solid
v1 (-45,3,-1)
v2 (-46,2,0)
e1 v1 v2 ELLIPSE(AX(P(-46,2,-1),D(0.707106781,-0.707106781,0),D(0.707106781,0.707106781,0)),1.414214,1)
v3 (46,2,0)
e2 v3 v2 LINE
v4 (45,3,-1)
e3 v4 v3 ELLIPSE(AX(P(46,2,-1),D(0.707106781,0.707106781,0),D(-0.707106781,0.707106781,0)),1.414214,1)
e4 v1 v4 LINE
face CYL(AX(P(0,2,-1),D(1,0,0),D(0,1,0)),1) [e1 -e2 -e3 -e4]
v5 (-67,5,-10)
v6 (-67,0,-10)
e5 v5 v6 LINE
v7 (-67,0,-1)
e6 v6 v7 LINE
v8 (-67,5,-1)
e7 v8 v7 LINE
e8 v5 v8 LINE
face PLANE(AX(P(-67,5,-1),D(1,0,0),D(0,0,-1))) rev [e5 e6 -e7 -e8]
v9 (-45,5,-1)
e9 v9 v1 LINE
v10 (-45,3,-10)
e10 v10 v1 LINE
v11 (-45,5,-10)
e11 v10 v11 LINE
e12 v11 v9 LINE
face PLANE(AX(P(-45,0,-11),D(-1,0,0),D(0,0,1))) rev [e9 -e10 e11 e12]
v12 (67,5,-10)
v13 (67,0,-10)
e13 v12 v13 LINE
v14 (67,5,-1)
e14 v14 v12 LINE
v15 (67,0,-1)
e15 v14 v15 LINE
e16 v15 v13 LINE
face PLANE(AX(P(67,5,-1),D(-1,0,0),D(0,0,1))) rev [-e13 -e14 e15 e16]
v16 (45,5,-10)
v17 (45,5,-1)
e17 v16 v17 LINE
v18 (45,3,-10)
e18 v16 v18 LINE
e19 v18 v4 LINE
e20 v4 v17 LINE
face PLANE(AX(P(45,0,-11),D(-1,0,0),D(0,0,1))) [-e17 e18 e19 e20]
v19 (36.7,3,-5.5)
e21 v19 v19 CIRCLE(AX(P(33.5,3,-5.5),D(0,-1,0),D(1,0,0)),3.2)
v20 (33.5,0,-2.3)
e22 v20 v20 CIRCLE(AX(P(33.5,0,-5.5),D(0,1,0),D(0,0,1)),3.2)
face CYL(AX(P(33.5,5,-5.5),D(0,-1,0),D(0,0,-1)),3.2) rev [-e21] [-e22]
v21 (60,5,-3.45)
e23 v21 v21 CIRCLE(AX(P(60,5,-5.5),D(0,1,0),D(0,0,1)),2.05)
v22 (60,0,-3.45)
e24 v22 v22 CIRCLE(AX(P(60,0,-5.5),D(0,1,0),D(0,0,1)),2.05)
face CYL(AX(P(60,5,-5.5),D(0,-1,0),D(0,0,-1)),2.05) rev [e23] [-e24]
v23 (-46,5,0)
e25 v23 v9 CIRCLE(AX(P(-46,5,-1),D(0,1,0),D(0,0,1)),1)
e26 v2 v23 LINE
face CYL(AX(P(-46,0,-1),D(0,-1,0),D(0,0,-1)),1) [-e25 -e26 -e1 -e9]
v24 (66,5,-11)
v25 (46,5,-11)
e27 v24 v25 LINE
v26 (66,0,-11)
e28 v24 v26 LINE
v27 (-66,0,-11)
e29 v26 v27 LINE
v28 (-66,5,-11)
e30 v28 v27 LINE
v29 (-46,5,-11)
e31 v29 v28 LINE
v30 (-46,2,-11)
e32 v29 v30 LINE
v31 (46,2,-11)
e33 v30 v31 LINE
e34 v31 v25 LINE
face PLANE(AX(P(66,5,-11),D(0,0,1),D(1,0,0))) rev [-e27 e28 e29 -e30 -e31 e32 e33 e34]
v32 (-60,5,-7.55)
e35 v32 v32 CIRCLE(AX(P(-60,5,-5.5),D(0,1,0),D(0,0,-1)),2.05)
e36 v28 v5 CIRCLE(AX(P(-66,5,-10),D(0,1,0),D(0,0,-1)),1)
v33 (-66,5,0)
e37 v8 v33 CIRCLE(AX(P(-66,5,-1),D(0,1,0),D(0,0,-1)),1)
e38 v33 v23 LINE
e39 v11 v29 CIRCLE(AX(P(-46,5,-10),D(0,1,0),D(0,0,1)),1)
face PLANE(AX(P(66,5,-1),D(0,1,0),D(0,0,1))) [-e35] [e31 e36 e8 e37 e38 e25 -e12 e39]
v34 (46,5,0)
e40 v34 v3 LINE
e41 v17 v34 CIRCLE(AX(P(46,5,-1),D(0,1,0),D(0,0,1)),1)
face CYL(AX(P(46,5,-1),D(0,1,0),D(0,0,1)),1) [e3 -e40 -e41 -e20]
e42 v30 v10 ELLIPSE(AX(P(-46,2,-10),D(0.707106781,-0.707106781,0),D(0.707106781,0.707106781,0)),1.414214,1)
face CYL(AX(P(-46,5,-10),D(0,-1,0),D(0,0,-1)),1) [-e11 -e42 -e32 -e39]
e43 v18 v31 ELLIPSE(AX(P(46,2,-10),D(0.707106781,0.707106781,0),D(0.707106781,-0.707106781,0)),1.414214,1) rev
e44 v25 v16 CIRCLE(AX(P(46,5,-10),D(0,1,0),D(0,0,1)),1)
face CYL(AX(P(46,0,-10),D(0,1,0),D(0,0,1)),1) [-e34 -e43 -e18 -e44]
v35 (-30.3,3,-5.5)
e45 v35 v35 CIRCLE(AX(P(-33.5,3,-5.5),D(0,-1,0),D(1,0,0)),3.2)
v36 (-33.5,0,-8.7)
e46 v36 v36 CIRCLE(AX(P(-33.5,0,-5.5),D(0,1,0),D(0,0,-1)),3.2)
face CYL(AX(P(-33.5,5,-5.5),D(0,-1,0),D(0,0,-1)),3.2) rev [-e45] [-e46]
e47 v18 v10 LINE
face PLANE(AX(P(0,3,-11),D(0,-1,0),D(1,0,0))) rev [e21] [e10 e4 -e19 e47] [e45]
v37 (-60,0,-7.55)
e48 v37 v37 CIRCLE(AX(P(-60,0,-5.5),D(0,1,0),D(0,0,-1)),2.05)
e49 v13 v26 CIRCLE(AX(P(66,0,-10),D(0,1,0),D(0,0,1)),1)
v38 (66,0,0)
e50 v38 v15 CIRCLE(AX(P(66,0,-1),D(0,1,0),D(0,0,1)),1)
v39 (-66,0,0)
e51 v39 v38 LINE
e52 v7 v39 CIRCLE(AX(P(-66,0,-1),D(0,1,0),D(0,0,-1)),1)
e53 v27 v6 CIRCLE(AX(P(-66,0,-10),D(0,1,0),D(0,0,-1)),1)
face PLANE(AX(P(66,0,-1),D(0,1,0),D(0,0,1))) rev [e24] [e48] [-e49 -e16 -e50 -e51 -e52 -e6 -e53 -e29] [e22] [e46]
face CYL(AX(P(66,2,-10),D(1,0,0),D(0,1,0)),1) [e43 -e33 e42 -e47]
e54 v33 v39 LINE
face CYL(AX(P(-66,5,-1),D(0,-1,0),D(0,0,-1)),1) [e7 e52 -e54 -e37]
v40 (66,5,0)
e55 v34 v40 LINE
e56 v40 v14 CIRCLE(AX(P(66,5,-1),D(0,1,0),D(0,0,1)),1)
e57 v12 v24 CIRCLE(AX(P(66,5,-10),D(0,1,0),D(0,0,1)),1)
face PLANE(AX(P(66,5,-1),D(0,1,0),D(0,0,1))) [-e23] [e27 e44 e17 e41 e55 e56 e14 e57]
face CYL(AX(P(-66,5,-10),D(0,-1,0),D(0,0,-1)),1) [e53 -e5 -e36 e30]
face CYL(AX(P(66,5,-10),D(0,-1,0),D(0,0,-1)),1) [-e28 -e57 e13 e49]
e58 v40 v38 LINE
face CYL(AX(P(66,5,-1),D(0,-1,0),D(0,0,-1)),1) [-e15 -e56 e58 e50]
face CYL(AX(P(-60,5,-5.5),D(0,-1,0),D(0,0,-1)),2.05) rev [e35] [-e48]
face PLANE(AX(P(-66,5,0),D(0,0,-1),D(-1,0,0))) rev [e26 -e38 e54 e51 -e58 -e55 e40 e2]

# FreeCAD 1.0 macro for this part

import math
import FreeCAD as App
import Part
import Sketcher
Q = App.Units.Quantity


def edges_at(feature, points):
    """Names of the edges that pass closest to the given points."""
    edges = feature.Shape.Edges
    near = lambda p: min(range(len(edges)), key=lambda i: edges[i].distToShape(Part.Vertex(*p))[0])
    return sorted({f"Edge{near(p) + 1}" for p in points})

doc = App.newDocument("Part")
body = doc.addObject("PartDesign::Body", "Body")

# Sketch on XZ plane
sketch1 = body.newObject("Sketcher::SketchObject", "Sketch")
sketch1.AttachmentSupport = (doc.getObject("XZ_Plane"), [""])
sketch1.MapMode = "FlatFace"
sketch1.addGeometry(Part.LineSegment(App.Vector(-66, 0, 0), App.Vector(66, 0, 0)), False)
sketch1.addGeometry(Part.ArcOfCircle(Part.Circle(App.Vector(66, -1, 0), App.Vector(0, 0, 1), 1), math.radians(0), math.radians(90)), False)
sketch1.addGeometry(Part.LineSegment(App.Vector(67, -1, 0), App.Vector(67, -10, 0)), False)
sketch1.addGeometry(Part.ArcOfCircle(Part.Circle(App.Vector(66, -10, 0), App.Vector(0, 0, 1), 1), math.radians(-90), math.radians(0)), False)
sketch1.addGeometry(Part.LineSegment(App.Vector(66, -11, 0), App.Vector(-66, -11, 0)), False)
sketch1.addGeometry(Part.ArcOfCircle(Part.Circle(App.Vector(-66, -10, 0), App.Vector(0, 0, 1), 1), math.radians(-180), math.radians(-90)), False)
sketch1.addGeometry(Part.LineSegment(App.Vector(-67, -10, 0), App.Vector(-67, -1, 0)), False)
sketch1.addGeometry(Part.ArcOfCircle(Part.Circle(App.Vector(-66, -1, 0), App.Vector(0, 0, 1), 1), math.radians(90), math.radians(180)), False)
sketch1.addGeometry(Part.Circle(App.Vector(-60, -5.5, 0), App.Vector(0, 0, 1), 2.05), False)
sketch1.addGeometry(Part.Circle(App.Vector(-33.5, -5.5, 0), App.Vector(0, 0, 1), 3.2), False)
sketch1.addGeometry(Part.Circle(App.Vector(33.5, -5.5, 0), App.Vector(0, 0, 1), 3.2), False)
sketch1.addGeometry(Part.Circle(App.Vector(60, -5.5, 0), App.Vector(0, 0, 1), 2.05), False)
sketch1.addConstraint(Sketcher.Constraint("Tangent", 0, 2, 1, 2))
sketch1.addConstraint(Sketcher.Constraint("Tangent", 1, 1, 2, 1))
sketch1.addConstraint(Sketcher.Constraint("Tangent", 2, 2, 3, 2))
sketch1.addConstraint(Sketcher.Constraint("Tangent", 3, 1, 4, 1))
sketch1.addConstraint(Sketcher.Constraint("Tangent", 4, 2, 5, 2))
sketch1.addConstraint(Sketcher.Constraint("Tangent", 5, 1, 6, 1))
sketch1.addConstraint(Sketcher.Constraint("Tangent", 6, 2, 7, 2))
sketch1.addConstraint(Sketcher.Constraint("Tangent", 7, 1, 0, 1))
sketch1.addConstraint(Sketcher.Constraint("Horizontal", 0))
sketch1.addConstraint(Sketcher.Constraint("Vertical", 2))
sketch1.addConstraint(Sketcher.Constraint("Horizontal", 4))
sketch1.addConstraint(Sketcher.Constraint("Vertical", 6))
sketch1.addConstraint(Sketcher.Constraint("Equal", 1, 3))
sketch1.addConstraint(Sketcher.Constraint("Equal", 3, 5))
sketch1.addConstraint(Sketcher.Constraint("Equal", 5, 7))
sketch1.addConstraint(Sketcher.Constraint("Equal", 9, 10))
sketch1.addConstraint(Sketcher.Constraint("Equal", 8, 11))
sketch1.addConstraint(Sketcher.Constraint("Symmetric", 0, 2, 7, 1, -1, 1))
sketch1.addConstraint(Sketcher.Constraint("Symmetric", 9, 3, 10, 3, -2))
sketch1.addConstraint(Sketcher.Constraint("Symmetric", 8, 3, 11, 3, -2))
sketch1.addConstraint(Sketcher.Constraint("Horizontal", 8, 3, 9, 3))
sketch1.addConstraint(Sketcher.Constraint("Radius", 1, Q("1 mm")))
sketch1.addConstraint(Sketcher.Constraint("Diameter", 8, Q("4.1 mm")))
sketch1.addConstraint(Sketcher.Constraint("Diameter", 9, Q("6.4 mm")))
sketch1.addConstraint(Sketcher.Constraint("DistanceX", 0, 1, 0, 2, Q("132 mm")))
sketch1.addConstraint(Sketcher.Constraint("DistanceY", 2, 2, 2, 1, Q("9 mm")))
sketch1.addConstraint(Sketcher.Constraint("DistanceX", 8, 3, -1, 1, Q("60 mm")))
sketch1.addConstraint(Sketcher.Constraint("DistanceX", 9, 3, 10, 3, Q("67 mm")))
sketch1.addConstraint(Sketcher.Constraint("DistanceY", 8, 3, -1, 1, Q("5.5 mm")))
pad1 = body.newObject("PartDesign::Pad", "Pad")
pad1.Profile = sketch1
pad1.Length = 5
pad1.Reversed = True

# Sketch on XY plane
sketch2 = body.newObject("Sketcher::SketchObject", "Sketch001")
sketch2.AttachmentSupport = (doc.getObject("XY_Plane"), [""])
sketch2.MapMode = "FlatFace"
sketch2.addGeometry(Part.LineSegment(App.Vector(-45, 5, 0), App.Vector(-45, 3, 0)), False)
sketch2.addGeometry(Part.LineSegment(App.Vector(-45, 3, 0), App.Vector(45, 3, 0)), False)
sketch2.addGeometry(Part.LineSegment(App.Vector(45, 3, 0), App.Vector(45, 5, 0)), False)
sketch2.addGeometry(Part.LineSegment(App.Vector(45, 5, 0), App.Vector(-45, 5, 0)), False)
sketch2.addConstraint(Sketcher.Constraint("Coincident", 0, 2, 1, 1))
sketch2.addConstraint(Sketcher.Constraint("Coincident", 1, 2, 2, 1))
sketch2.addConstraint(Sketcher.Constraint("Coincident", 2, 2, 3, 1))
sketch2.addConstraint(Sketcher.Constraint("Coincident", 3, 2, 0, 1))
sketch2.addConstraint(Sketcher.Constraint("Vertical", 0))
sketch2.addConstraint(Sketcher.Constraint("Horizontal", 1))
sketch2.addConstraint(Sketcher.Constraint("Vertical", 2))
sketch2.addConstraint(Sketcher.Constraint("Horizontal", 3))
sketch2.addConstraint(Sketcher.Constraint("DistanceX", 1, 1, 1, 2, Q("90 mm")))
sketch2.addConstraint(Sketcher.Constraint("DistanceY", 0, 2, 0, 1, Q("2 mm")))
sketch2.addConstraint(Sketcher.Constraint("DistanceX", 0, 2, -1, 1, Q("45 mm")))
sketch2.addConstraint(Sketcher.Constraint("DistanceY", -1, 1, 0, 2, Q("3 mm")))
pocket1 = body.newObject("PartDesign::Pocket", "Pocket")
pocket1.Profile = sketch2
pocket1.Type = "ThroughAll"
doc.recompute()

fillet = body.newObject("PartDesign::Fillet", "Fillet")
fillet.Base = (pocket1, edges_at(pocket1, [
    (-45, 4, -11),
    (45, 4, 0),
    (0, 3, -11),
    (45, 4, -11),
    (-45, 4, 0),
    (0, 3, 0),
]))
fillet.Radius = 1

doc.recompute()
